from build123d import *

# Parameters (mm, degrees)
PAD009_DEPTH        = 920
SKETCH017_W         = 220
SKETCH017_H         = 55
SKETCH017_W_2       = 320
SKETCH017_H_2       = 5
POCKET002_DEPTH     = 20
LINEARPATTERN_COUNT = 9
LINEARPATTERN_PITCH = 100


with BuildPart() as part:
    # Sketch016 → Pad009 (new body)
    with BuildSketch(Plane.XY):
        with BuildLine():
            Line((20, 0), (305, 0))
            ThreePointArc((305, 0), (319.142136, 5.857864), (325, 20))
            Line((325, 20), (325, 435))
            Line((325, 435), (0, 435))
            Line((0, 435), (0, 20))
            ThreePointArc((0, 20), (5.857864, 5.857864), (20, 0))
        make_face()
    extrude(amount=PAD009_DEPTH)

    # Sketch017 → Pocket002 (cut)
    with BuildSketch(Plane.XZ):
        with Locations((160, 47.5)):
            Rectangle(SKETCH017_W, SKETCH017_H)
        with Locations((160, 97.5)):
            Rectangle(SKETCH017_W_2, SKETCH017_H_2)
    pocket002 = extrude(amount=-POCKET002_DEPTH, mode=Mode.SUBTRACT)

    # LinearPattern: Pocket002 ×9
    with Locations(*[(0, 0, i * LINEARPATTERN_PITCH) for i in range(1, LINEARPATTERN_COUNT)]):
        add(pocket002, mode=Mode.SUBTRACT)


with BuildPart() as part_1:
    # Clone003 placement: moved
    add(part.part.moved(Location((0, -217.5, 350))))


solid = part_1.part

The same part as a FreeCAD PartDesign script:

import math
import FreeCAD as App
import Part
import Sketcher

V = App.Vector
Q = App.Units.Quantity

doc = App.newDocument("Part")
params = doc.addObject("Spreadsheet::Sheet", "Params")
for row, (alias, value) in enumerate([
    ("sketch1_radius", "19.999999 mm"),
    ("sketch1_width", "285 mm"),
    ("sketch1_height", "415 mm"),
    ("pad1_length", "920 mm"),
    ("sketch2_width", "220 mm"),
    ("sketch2_width2", "320 mm"),
    ("sketch2_height", "55 mm"),
    ("sketch2_height2", "5 mm"),
    ("pocket1_length", "20 mm"),
    ("linearpattern_pitch", "100 mm"),
], start=1):
    params.set(f"A{row}", alias)
    params.set(f"B{row}", "=" + value)
    params.setAlias(f"B{row}", alias)

body = doc.addObject("PartDesign::Body", "Body")

# Sketch on XY plane
sketch1 = body.newObject("Sketcher::SketchObject", "Sketch")
sketch1.AttachmentSupport = (doc.getObject("XY_Plane"), [""])
sketch1.MapMode = "FlatFace"
sketch1.addGeometry([
    Part.LineSegment(V(20, 0, 0), V(305, 0, 0)),  # 0
    Part.ArcOfCircle(Part.Circle(V(305, 20, 0), V(0, 0, 1), 20), math.radians(-90), math.radians(0)),  # 1
    Part.LineSegment(V(325, 20, 0), V(325, 435, 0)),  # 2
    Part.LineSegment(V(325, 435, 0), V(0, 435, 0)),  # 3
    Part.LineSegment(V(0, 435, 0), V(0, 20, 0)),  # 4
    Part.ArcOfCircle(Part.Circle(V(20, 20, 0), V(0, 0, 1), 20), math.radians(180), math.radians(270)),  # 5
], False)
sketch1.addConstraint([
    Sketcher.Constraint("Tangent", 0, 2, 1, 1),
    Sketcher.Constraint("Tangent", 1, 2, 2, 1),
    Sketcher.Constraint("Coincident", 2, 2, 3, 1),
    Sketcher.Constraint("Coincident", 3, 2, 4, 1),
    Sketcher.Constraint("Tangent", 4, 2, 5, 1),
    Sketcher.Constraint("Tangent", 5, 2, 0, 1),
    Sketcher.Constraint("Horizontal", 0),
    Sketcher.Constraint("Vertical", 2),
    Sketcher.Constraint("Horizontal", 3),
    Sketcher.Constraint("Vertical", 4),
    Sketcher.Constraint("Equal", 1, 5),
    Sketcher.Constraint("PointOnObject", 0, 2, -1),
    Sketcher.Constraint("PointOnObject", 3, 2, -2),
    Sketcher.Constraint("Radius", 1, Q("19.999999 mm")),
    Sketcher.Constraint("DistanceX", 0, 1, 0, 2, Q("285 mm")),
    Sketcher.Constraint("DistanceY", 2, 1, 2, 2, Q("415 mm")),
])
sketch1.setExpression("Constraints[13]", "Params.sketch1_radius")
sketch1.setExpression("Constraints[14]", "Params.sketch1_width")
sketch1.setExpression("Constraints[15]", "Params.sketch1_height")
pad1 = body.newObject("PartDesign::Pad", "Pad")
pad1.Profile = sketch1
pad1.setExpression("Length", "Params.pad1_length")

# Sketch on XZ plane
sketch2 = body.newObject("Sketcher::SketchObject", "Sketch001")
sketch2.AttachmentSupport = (doc.getObject("XZ_Plane"), [""])
sketch2.MapMode = "FlatFace"
sketch2.addGeometry([
    Part.LineSegment(V(50, 75, 0), V(50, 20, 0)),  # 0
    Part.LineSegment(V(50, 20, 0), V(270, 20, 0)),  # 1
    Part.LineSegment(V(270, 20, 0), V(270, 75, 0)),  # 2
    Part.LineSegment(V(270, 75, 0), V(50, 75, 0)),  # 3
    Part.LineSegment(V(0, 100, 0), V(0, 95, 0)),  # 4
    Part.LineSegment(V(0, 95, 0), V(320, 95, 0)),  # 5
    Part.LineSegment(V(320, 95, 0), V(320, 100, 0)),  # 6
    Part.LineSegment(V(320, 100, 0), V(0, 100, 0)),  # 7
], False)
sketch2.addConstraint([
    Sketcher.Constraint("Coincident", 0, 2, 1, 1),
    Sketcher.Constraint("Coincident", 1, 2, 2, 1),
    Sketcher.Constraint("Coincident", 2, 2, 3, 1),
    Sketcher.Constraint("Coincident", 3, 2, 0, 1),
    Sketcher.Constraint("Coincident", 4, 2, 5, 1),
    Sketcher.Constraint("Coincident", 5, 2, 6, 1),
    Sketcher.Constraint("Coincident", 6, 2, 7, 1),
    Sketcher.Constraint("Coincident", 7, 2, 4, 1),
    Sketcher.Constraint("Vertical", 0),
    Sketcher.Constraint("Horizontal", 1),
    Sketcher.Constraint("Vertical", 2),
    Sketcher.Constraint("Horizontal", 3),
    Sketcher.Constraint("Vertical", 4),
    Sketcher.Constraint("Horizontal", 5),
    Sketcher.Constraint("Vertical", 6),
    Sketcher.Constraint("Horizontal", 7),
    Sketcher.Constraint("PointOnObject", 4, 2, -2),
    Sketcher.Constraint("DistanceX", 1, 1, 1, 2, Q("220 mm")),
    Sketcher.Constraint("DistanceX", 5, 1, 5, 2, Q("320 mm")),
    Sketcher.Constraint("DistanceY", 0, 2, 0, 1, Q("55 mm")),
    Sketcher.Constraint("DistanceY", 4, 2, 4, 1, Q("5 mm")),
    Sketcher.Constraint("DistanceX", -1, 1, 0, 2, Q("50 mm")),
    Sketcher.Constraint("DistanceY", -1, 1, 0, 2, Q("20 mm")),
    Sketcher.Constraint("DistanceY", -1, 1, 4, 2, Q("95 mm")),
])
sketch2.setExpression("Constraints[17]", "Params.sketch2_width")
sketch2.setExpression("Constraints[18]", "Params.sketch2_width2")
sketch2.setExpression("Constraints[19]", "Params.sketch2_height")
sketch2.setExpression("Constraints[20]", "Params.sketch2_height2")
pocket1 = body.newObject("PartDesign::Pocket", "Pocket")
pocket1.Profile = sketch2
pocket1.setExpression("Length", "Params.pocket1_length")
doc.recompute()

linearpattern = body.newObject("PartDesign::LinearPattern", "LinearPattern")
linearpattern.Originals = [pocket1]
linearpattern.Direction = (doc.getObject("Z_Axis"), [""])
linearpattern.Mode = "offset"
linearpattern.setExpression("Offset", "Params.linearpattern_pitch")
linearpattern.Occurrences = 9
body.Tip = linearpattern
body2 = doc.addObject("PartDesign::Body", "Body001")
doc.recompute()

body.Placement = App.Placement(V(0, -217.5, 350), App.Rotation(V(0, 0, 1), 0))
boolean = body2.newObject("PartDesign::Boolean", "Boolean")
boolean.Type = "Fuse"
boolean.addObjects([body])

doc.recompute()
